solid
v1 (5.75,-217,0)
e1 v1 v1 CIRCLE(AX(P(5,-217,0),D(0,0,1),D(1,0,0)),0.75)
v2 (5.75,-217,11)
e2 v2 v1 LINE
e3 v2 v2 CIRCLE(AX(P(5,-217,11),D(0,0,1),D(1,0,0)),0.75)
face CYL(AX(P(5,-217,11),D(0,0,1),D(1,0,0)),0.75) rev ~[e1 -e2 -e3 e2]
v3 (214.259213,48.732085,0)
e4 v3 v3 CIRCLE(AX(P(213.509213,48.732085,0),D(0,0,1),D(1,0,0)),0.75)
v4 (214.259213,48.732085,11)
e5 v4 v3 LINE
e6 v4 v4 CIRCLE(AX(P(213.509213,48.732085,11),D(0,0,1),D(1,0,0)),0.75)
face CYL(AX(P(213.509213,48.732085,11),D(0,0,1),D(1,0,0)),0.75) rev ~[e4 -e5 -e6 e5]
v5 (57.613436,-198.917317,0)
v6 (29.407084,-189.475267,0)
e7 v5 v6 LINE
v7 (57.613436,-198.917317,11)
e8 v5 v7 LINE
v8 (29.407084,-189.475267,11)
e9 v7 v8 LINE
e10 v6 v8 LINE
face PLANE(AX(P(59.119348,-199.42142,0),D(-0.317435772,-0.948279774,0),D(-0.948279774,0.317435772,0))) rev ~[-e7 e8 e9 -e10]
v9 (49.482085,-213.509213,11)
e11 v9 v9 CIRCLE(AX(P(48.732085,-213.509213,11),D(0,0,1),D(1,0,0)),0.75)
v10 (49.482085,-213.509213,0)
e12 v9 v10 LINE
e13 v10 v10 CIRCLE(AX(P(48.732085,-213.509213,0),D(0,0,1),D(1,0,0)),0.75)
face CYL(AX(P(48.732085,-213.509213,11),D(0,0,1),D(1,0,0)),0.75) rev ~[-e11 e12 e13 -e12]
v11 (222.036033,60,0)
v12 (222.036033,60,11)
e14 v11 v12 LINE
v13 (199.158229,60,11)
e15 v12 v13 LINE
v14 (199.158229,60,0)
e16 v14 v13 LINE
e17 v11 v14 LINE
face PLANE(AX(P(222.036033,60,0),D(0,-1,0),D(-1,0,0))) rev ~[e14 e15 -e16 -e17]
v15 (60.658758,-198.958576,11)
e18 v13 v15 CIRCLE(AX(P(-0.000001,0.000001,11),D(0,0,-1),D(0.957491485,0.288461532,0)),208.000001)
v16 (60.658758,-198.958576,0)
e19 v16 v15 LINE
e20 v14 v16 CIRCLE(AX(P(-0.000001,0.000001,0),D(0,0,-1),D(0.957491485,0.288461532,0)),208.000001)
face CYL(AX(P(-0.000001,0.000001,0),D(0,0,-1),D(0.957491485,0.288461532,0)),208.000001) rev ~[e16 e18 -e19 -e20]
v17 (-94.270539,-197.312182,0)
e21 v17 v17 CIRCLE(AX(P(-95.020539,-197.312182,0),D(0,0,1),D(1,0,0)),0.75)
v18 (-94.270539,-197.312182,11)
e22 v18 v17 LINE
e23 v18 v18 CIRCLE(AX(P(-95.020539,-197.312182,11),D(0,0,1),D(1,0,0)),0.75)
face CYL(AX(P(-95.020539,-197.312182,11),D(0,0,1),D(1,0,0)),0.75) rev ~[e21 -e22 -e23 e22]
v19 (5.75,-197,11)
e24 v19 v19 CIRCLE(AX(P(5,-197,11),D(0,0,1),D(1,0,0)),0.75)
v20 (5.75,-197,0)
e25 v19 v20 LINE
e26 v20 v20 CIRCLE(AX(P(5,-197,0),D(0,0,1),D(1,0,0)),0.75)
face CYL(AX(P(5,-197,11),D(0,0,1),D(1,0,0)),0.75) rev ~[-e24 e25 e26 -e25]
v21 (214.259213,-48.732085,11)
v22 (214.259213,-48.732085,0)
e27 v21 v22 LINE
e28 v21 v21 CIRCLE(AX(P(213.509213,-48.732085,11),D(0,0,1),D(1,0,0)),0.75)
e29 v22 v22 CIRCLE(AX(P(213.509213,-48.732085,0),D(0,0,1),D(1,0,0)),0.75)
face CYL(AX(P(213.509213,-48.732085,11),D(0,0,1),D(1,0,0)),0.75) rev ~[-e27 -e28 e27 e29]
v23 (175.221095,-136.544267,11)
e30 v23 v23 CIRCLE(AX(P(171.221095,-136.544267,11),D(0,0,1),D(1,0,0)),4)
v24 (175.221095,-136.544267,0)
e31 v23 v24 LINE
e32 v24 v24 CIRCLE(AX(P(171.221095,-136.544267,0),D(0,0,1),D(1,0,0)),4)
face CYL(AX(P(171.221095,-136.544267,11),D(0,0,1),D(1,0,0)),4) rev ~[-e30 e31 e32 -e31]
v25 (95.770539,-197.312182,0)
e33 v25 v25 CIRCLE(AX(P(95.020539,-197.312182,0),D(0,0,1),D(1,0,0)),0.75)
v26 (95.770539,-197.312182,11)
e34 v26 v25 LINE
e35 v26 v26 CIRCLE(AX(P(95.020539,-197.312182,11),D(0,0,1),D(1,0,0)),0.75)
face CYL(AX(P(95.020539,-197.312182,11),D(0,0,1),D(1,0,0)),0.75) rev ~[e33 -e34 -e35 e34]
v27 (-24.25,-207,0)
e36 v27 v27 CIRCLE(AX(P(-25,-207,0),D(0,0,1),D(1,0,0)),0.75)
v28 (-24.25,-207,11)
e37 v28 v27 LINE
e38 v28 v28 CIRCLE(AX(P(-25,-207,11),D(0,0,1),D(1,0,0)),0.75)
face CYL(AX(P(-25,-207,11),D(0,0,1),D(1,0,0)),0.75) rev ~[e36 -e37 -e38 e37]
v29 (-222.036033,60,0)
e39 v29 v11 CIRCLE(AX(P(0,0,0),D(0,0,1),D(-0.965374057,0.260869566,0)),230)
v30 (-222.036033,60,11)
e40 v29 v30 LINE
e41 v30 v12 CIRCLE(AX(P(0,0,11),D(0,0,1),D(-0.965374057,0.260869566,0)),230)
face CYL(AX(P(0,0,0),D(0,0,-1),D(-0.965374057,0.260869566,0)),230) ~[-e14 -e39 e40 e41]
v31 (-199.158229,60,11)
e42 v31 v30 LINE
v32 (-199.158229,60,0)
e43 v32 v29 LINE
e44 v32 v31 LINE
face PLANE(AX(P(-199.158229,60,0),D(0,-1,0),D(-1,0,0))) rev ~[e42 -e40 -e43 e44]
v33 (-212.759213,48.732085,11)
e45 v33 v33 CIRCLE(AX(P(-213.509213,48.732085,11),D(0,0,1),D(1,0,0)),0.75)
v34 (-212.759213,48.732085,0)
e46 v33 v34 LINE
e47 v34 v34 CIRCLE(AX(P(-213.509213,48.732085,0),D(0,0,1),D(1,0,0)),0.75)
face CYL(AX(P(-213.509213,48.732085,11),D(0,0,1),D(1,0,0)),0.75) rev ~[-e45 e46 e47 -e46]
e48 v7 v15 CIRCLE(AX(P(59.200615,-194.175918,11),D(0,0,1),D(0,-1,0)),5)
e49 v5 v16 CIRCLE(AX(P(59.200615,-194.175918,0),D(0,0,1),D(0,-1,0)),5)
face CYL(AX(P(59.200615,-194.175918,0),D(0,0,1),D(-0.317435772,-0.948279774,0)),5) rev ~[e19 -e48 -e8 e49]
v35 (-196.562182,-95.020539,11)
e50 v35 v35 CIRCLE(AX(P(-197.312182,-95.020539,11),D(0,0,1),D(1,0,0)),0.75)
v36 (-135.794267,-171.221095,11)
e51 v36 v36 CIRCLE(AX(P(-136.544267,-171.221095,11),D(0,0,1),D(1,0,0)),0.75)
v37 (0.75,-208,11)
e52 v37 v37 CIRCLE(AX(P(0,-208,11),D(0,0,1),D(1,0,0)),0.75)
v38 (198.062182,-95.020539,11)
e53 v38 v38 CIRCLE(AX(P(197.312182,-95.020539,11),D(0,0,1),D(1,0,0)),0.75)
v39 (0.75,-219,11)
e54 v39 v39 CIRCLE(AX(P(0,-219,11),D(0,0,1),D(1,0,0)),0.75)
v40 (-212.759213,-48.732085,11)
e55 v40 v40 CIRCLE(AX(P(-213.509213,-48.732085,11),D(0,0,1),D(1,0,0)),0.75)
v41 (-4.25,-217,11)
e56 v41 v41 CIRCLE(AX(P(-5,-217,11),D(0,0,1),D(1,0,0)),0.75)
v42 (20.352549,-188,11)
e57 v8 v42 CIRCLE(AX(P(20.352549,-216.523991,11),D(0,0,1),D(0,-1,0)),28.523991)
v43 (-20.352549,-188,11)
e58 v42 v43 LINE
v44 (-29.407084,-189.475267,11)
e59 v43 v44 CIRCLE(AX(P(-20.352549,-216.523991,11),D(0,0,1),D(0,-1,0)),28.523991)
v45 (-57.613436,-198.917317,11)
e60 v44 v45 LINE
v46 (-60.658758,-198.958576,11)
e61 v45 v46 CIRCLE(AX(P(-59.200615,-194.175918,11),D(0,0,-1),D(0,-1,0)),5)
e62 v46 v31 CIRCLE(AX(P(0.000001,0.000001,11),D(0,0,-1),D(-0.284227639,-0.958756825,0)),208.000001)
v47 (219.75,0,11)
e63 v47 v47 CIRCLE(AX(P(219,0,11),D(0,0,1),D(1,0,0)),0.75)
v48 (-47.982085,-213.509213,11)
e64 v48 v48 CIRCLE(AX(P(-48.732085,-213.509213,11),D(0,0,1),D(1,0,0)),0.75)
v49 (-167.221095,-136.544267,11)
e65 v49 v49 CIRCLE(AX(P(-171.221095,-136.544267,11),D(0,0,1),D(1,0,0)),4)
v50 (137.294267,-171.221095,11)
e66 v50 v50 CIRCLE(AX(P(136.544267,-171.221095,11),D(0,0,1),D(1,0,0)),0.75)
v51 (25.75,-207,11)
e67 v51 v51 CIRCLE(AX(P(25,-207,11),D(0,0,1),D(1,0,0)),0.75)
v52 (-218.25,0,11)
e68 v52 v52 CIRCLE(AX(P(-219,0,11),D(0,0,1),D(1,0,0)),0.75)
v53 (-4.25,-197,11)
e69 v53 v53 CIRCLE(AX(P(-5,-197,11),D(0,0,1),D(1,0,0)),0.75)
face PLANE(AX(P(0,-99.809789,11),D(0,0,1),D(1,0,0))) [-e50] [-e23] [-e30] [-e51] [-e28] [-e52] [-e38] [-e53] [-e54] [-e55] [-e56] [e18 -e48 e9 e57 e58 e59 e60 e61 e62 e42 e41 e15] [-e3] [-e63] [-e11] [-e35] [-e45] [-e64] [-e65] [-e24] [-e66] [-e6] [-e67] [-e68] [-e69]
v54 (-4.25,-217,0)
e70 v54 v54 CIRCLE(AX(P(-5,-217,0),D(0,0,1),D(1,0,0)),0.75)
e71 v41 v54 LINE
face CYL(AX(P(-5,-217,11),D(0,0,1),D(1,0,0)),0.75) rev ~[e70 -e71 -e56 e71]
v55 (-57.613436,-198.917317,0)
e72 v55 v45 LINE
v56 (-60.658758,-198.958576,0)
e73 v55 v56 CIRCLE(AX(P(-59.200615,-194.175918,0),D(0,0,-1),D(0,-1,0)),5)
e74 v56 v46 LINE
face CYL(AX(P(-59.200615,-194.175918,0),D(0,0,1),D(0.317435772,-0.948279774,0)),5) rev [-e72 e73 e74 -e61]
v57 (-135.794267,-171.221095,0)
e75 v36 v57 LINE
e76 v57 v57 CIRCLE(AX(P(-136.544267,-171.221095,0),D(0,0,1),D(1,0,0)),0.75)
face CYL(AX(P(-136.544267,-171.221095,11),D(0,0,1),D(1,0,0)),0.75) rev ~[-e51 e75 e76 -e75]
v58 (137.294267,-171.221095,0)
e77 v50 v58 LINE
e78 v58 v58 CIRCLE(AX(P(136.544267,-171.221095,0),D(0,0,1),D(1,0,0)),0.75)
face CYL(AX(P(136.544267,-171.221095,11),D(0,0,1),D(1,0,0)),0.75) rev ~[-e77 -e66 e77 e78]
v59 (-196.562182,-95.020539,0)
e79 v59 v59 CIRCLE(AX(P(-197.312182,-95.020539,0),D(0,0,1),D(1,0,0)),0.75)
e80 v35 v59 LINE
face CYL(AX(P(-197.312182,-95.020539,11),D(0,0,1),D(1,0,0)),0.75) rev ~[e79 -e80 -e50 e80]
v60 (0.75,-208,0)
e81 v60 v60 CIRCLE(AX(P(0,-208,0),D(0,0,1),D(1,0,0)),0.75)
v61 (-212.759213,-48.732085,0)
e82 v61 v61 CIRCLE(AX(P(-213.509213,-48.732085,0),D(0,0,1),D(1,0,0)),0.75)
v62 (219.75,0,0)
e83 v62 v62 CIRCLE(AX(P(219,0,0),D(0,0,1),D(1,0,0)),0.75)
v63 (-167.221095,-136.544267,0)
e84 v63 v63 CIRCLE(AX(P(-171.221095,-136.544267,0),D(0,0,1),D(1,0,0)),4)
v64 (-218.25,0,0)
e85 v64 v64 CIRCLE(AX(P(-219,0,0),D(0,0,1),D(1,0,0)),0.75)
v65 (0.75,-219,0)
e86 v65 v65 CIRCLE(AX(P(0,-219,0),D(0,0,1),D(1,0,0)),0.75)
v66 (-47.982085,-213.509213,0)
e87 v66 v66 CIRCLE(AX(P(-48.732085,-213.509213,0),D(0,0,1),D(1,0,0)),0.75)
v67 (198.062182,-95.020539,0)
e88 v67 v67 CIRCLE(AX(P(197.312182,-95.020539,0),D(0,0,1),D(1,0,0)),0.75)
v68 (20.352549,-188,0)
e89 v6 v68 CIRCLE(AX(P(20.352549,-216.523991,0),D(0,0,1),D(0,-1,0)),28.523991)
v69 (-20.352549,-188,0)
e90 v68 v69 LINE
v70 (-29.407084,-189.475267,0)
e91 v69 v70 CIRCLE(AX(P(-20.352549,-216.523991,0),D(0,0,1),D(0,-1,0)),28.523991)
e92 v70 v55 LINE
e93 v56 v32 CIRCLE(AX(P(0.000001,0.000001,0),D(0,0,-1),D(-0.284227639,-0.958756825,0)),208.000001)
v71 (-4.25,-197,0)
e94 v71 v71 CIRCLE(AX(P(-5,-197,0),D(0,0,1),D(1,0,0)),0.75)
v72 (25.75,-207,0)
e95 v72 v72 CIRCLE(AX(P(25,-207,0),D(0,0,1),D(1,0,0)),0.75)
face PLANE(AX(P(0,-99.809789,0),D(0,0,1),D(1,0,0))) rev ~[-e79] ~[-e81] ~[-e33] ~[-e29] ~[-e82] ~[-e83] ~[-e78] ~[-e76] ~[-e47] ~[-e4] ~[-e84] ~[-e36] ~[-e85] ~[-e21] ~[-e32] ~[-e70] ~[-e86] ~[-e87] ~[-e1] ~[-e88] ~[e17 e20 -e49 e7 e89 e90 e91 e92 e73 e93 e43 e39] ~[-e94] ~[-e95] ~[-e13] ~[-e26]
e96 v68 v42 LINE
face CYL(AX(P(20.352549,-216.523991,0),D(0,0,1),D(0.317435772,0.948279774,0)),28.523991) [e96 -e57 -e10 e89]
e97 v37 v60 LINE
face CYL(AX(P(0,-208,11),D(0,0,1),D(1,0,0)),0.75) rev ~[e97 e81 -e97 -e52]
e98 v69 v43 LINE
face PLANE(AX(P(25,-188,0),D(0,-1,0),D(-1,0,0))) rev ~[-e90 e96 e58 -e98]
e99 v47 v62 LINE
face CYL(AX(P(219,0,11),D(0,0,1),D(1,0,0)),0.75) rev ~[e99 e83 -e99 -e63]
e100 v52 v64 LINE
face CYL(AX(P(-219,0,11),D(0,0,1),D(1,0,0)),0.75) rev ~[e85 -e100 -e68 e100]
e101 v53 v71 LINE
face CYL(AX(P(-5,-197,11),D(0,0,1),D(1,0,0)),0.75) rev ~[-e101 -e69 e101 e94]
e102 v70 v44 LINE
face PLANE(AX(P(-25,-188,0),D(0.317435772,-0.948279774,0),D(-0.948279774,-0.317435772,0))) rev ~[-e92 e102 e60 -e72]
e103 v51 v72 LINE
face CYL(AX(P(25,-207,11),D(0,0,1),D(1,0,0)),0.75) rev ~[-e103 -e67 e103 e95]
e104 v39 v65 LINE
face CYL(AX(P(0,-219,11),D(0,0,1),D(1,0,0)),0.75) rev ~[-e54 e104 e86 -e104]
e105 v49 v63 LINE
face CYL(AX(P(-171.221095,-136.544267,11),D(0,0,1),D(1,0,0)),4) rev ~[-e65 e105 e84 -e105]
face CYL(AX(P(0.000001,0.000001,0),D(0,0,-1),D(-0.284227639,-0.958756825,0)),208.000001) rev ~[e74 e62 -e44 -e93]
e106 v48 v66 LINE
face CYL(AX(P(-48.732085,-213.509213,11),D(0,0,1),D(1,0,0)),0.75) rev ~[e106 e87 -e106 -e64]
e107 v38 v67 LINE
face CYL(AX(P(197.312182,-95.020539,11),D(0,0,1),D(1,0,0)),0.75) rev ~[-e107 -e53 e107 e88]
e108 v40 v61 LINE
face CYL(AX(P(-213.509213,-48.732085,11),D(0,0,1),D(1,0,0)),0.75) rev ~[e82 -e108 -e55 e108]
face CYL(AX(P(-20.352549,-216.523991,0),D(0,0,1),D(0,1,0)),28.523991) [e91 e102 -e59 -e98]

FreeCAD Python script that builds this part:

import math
import FreeCAD as App
import Part
import Sketcher

V = App.Vector


def edges_at(feature, points):
    """Names of the edges that pass closest to the given points."""
    edges = feature.Shape.Edges
    near = lambda p: min(range(len(edges)), key=lambda i: edges[i].distToShape(Part.Vertex(*p))[0])
    return sorted({f"Edge{near(p) + 1}" for p in points})

doc = App.newDocument("Part")
params = doc.addObject("Spreadsheet::Sheet", "Params")
for row, (alias, value) in enumerate([
    ("sketch1_radius", "208.000001 mm"),
    ("sketch1_radius2", "230 mm"),
    ("sketch1_width", "50 mm"),
    ("pad1_length", "11 mm"),
    ("fillet_radius", "28.523991 mm"),
    ("fillet2_radius", "5 mm"),
    ("sketch2_diameter", "1.5 mm"),
    ("sketch3_diameter", "8 mm"),
], start=1):
    params.set(f"A{row}", alias)
    params.set(f"B{row}", "=" + value)
    params.setAlias(f"B{row}", alias)

body = doc.addObject("PartDesign::Body", "Body")

sketch1 = doc.addObject("Sketcher::SketchObject", "Sketch")
body.addObject(sketch1)
sketch1.AttachmentSupport = (doc.XY_Plane, [""])
sketch1.MapMode = "FlatFace"
sketch1.addGeometry([
    Part.ArcOfCircle(Part.Circle(V(0.000001, 0.000001, 0), V(0, 0, 1), 208.000001), math.radians(163.234127), math.radians(253.487314)),
    Part.LineSegment(V(-199.158229, 60, 0), V(-222.036033, 60, 0)),
    Part.ArcOfCircle(Part.Circle(V(0, 0, 0), V(0, 0, 1), 230), math.radians(164.878335), math.radians(375.121665)),
    Part.LineSegment(V(222.036033, 60, 0), V(199.158229, 60, 0)),
    Part.ArcOfCircle(Part.Circle(V(-0.000001, 0.000001, 0), V(0, 0, 1), 208.000001), math.radians(-73.487314), math.radians(16.765873)),
    Part.LineSegment(V(59.119348, -199.42142, 0), V(25, -188, 0)),
    Part.LineSegment(V(25, -188, 0), V(-25, -188, 0)),
    Part.LineSegment(V(-25, -188, 0), V(-59.119348, -199.42142, 0)),
], False)
sketch1.addConstraint([
    Sketcher.Constraint("Coincident", 0, 1, 1, 1),
    Sketcher.Constraint("Coincident", 1, 2, 2, 1),
    Sketcher.Constraint("Coincident", 2, 2, 3, 1),
    Sketcher.Constraint("Coincident", 3, 2, 4, 2),
    Sketcher.Constraint("Coincident", 4, 1, 5, 1),
    Sketcher.Constraint("Coincident", 5, 2, 6, 1),
    Sketcher.Constraint("Coincident", 6, 2, 7, 1),
    Sketcher.Constraint("Coincident", 7, 2, 0, 2),
    Sketcher.Constraint("Horizontal", 1),
    Sketcher.Constraint("Horizontal", 3),
    Sketcher.Constraint("Horizontal", 6),
    Sketcher.Constraint("Coincident", 0, 3, -1, 1),
    Sketcher.Constraint("Coincident", 2, 3, -1, 1),
    Sketcher.Constraint("Coincident", 4, 3, -1, 1),
    Sketcher.Constraint("Equal", 0, 4),
    Sketcher.Constraint("Horizontal", 1, 2, 2, 2),
    Sketcher.Constraint("Horizontal", 4, 1, 7, 2),
    Sketcher.Constraint("Equal", 5, 7),
    Sketcher.Constraint("Radius", 0, 208.000001),
    Sketcher.Constraint("Radius", 2, 230.0),
    Sketcher.Constraint("DistanceX", 6, 2, 6, 1, 50.0),
    Sketcher.Constraint("DistanceY", -1, 1, 0, 1, 60.0),
    Sketcher.Constraint("DistanceY", 5, 2, -1, 1, 188.0),
    Sketcher.Constraint("DistanceX", -1, 1, 4, 1, 59.119348),
])
sketch1.setExpression("Constraints[18]", "Params.sketch1_radius")
sketch1.setExpression("Constraints[19]", "Params.sketch1_radius2")
sketch1.setExpression("Constraints[20]", "Params.sketch1_width")
pad1 = doc.addObject("PartDesign::Pad", "Pad")
body.addObject(pad1)
pad1.Profile = sketch1
pad1.setExpression("Length", "Params.pad1_length")
doc.recompute()

fillet = doc.addObject("PartDesign::Fillet", "Fillet")
body.addObject(fillet)
fillet.Base = (pad1, edges_at(pad1, [(25, -188, 5.5), (-25, -188, 5.5)]))
fillet.setExpression("Radius", "Params.fillet_radius")
doc.recompute()

fillet2 = doc.addObject("PartDesign::Fillet", "Fillet001")
body.addObject(fillet2)
fillet2.Base = (fillet, edges_at(fillet, [(59.119, -199.421, 5.5), (-59.119, -199.421, 5.5)]))
fillet2.setExpression("Radius", "Params.fillet2_radius")

sketch2 = doc.addObject("Sketcher::SketchObject", "Sketch001")
body.addObject(sketch2)
sketch2.AttachmentSupport = (doc.XY_Plane, [""])
sketch2.MapMode = "FlatFace"
sketch2.AttachmentOffset = App.Placement(V(0, 0, 11), App.Rotation())
sketch2.addGeometry([
    Part.Circle(V(0, -219, 0), V(0, 0, 1), 0.75),
    Part.Circle(V(48.732085, -213.509213, 0), V(0, 0, 1), 0.75),
    Part.Circle(V(95.020539, -197.312182, 0), V(0, 0, 1), 0.75),
    Part.Circle(V(136.544267, -171.221095, 0), V(0, 0, 1), 0.75),
    Part.Circle(V(171.221095, -136.544267, 0), V(0, 0, 1), 0.75),
    Part.Circle(V(197.312182, -95.020539, 0), V(0, 0, 1), 0.75),
    Part.Circle(V(213.509213, -48.732085, 0), V(0, 0, 1), 0.75),
    Part.Circle(V(219, 0, 0), V(0, 0, 1), 0.75),
    Part.Circle(V(213.509213, 48.732085, 0), V(0, 0, 1), 0.75),
    Part.Circle(V(197.312182, 95.020539, 0), V(0, 0, 1), 0.75),
    Part.Circle(V(171.221095, 136.544267, 0), V(0, 0, 1), 0.75),
    Part.Circle(V(136.544267, 171.221095, 0), V(0, 0, 1), 0.75),
    Part.Circle(V(95.020539, 197.312182, 0), V(0, 0, 1), 0.75),
    Part.Circle(V(48.732085, 213.509213, 0), V(0, 0, 1), 0.75),
    Part.Circle(V(0, 219, 0), V(0, 0, 1), 0.75),
    Part.Circle(V(-48.732085, 213.509213, 0), V(0, 0, 1), 0.75),
    Part.Circle(V(-95.020539, 197.312182, 0), V(0, 0, 1), 0.75),
    Part.Circle(V(-136.544267, 171.221095, 0), V(0, 0, 1), 0.75),
    Part.Circle(V(-171.221095, 136.544267, 0), V(0, 0, 1), 0.75),
    Part.Circle(V(-197.312182, 95.020539, 0), V(0, 0, 1), 0.75),
    Part.Circle(V(-213.509213, 48.732085, 0), V(0, 0, 1), 0.75),
    Part.Circle(V(-219, 0, 0), V(0, 0, 1), 0.75),
    Part.Circle(V(-213.509213, -48.732085, 0), V(0, 0, 1), 0.75),
    Part.Circle(V(-197.312182, -95.020539, 0), V(0, 0, 1), 0.75),
    Part.Circle(V(-171.221095, -136.544267, 0), V(0, 0, 1), 0.75),
    Part.Circle(V(-136.544267, -171.221095, 0), V(0, 0, 1), 0.75),
    Part.Circle(V(-95.020539, -197.312182, 0), V(0, 0, 1), 0.75),
    Part.Circle(V(-48.732085, -213.509213, 0), V(0, 0, 1), 0.75),
    Part.Circle(V(-5, -197, 0), V(0, 0, 1), 0.75),
    Part.Circle(V(5, -197, 0), V(0, 0, 1), 0.75),
    Part.Circle(V(0, -208, 0), V(0, 0, 1), 0.75),
    Part.Circle(V(-5, -217, 0), V(0, 0, 1), 0.75),
    Part.Circle(V(-25, -207, 0), V(0, 0, 1), 0.75),
    Part.Circle(V(5, -217, 0), V(0, 0, 1), 0.75),
    Part.Circle(V(25, -207, 0), V(0, 0, 1), 0.75),
], False)
sketch2.addConstraint([
    Sketcher.Constraint("Equal", 0, 1),
    Sketcher.Constraint("Equal", 1, 2),
    Sketcher.Constraint("Equal", 2, 3),
    Sketcher.Constraint("Equal", 3, 4),
    Sketcher.Constraint("Equal", 4, 5),
    Sketcher.Constraint("Equal", 5, 6),
    Sketcher.Constraint("Equal", 6, 7),
    Sketcher.Constraint("Equal", 7, 8),
    Sketcher.Constraint("Equal", 8, 9),
    Sketcher.Constraint("Equal", 9, 10),
    Sketcher.Constraint("Equal", 10, 11),
    Sketcher.Constraint("Equal", 11, 12),
    Sketcher.Constraint("Equal", 12, 13),
    Sketcher.Constraint("Equal", 13, 14),
    Sketcher.Constraint("Equal", 14, 15),
    Sketcher.Constraint("Equal", 15, 16),
    Sketcher.Constraint("Equal", 16, 17),
    Sketcher.Constraint("Equal", 17, 18),
    Sketcher.Constraint("Equal", 18, 19),
    Sketcher.Constraint("Equal", 19, 20),
    Sketcher.Constraint("Equal", 20, 21),
    Sketcher.Constraint("Equal", 21, 22),
    Sketcher.Constraint("Equal", 22, 23),
    Sketcher.Constraint("Equal", 23, 24),
    Sketcher.Constraint("Equal", 24, 25),
    Sketcher.Constraint("Equal", 25, 26),
    Sketcher.Constraint("Equal", 26, 27),
    Sketcher.Constraint("Equal", 27, 28),
    Sketcher.Constraint("Equal", 28, 29),
    Sketcher.Constraint("Equal", 29, 30),
    Sketcher.Constraint("Equal", 30, 31),
    Sketcher.Constraint("Equal", 31, 32),
    Sketcher.Constraint("Equal", 32, 33),
    Sketcher.Constraint("Equal", 33, 34),
    Sketcher.Constraint("Symmetric", 0, 3, 14, 3, -1, 1),
    Sketcher.Constraint("Symmetric", 1, 3, 15, 3, -1, 1),
    Sketcher.Constraint("Symmetric", 2, 3, 16, 3, -1, 1),
    Sketcher.Constraint("Symmetric", 3, 3, 17, 3, -1, 1),
    Sketcher.Constraint("Symmetric", 4, 3, 18, 3, -1, 1),
    Sketcher.Constraint("Symmetric", 5, 3, 19, 3, -1, 1),
    Sketcher.Constraint("Symmetric", 6, 3, 20, 3, -1, 1),
    Sketcher.Constraint("Symmetric", 7, 3, 21, 3, -1, 1),
    Sketcher.Constraint("Symmetric", 8, 3, 22, 3, -1, 1),
    Sketcher.Constraint("Symmetric", 9, 3, 23, 3, -1, 1),
    Sketcher.Constraint("Symmetric", 10, 3, 24, 3, -1, 1),
    Sketcher.Constraint("Symmetric", 11, 3, 25, 3, -1, 1),
    Sketcher.Constraint("Symmetric", 12, 3, 26, 3, -1, 1),
    Sketcher.Constraint("Symmetric", 13, 3, 27, 3, -1, 1),
    Sketcher.Constraint("Symmetric", 13, 3, 15, 3, -2),
    Sketcher.Constraint("Symmetric", 12, 3, 16, 3, -2),
    Sketcher.Constraint("Symmetric", 11, 3, 17, 3, -2),
    Sketcher.Constraint("Symmetric", 10, 3, 18, 3, -2),
    Sketcher.Constraint("Symmetric", 9, 3, 19, 3, -2),
    Sketcher.Constraint("Symmetric", 8, 3, 20, 3, -2),
    Sketcher.Constraint("Symmetric", 28, 3, 29, 3, -2),
    Sketcher.Constraint("Symmetric", 31, 3, 33, 3, -2),
    Sketcher.Constraint("Symmetric", 32, 3, 34, 3, -2),
    Sketcher.Constraint("PointOnObject", 0, 3, -2),
    Sketcher.Constraint("PointOnObject", 7, 3, -1),
    Sketcher.Constraint("PointOnObject", 30, 3, -2),
    Sketcher.Constraint("Vertical", 28, 3, 31, 3),
    Sketcher.Constraint("Diameter", 0, 1.5),
    Sketcher.Constraint("DistanceY", 0, 3, -1, 1, 219.0),
    Sketcher.Constraint("DistanceX", -1, 1, 7, 3, 219.0),
    Sketcher.Constraint("DistanceX", 28, 3, -1, 1, 5.0),
    Sketcher.Constraint("DistanceY", 28, 3, -1, 1, 197.0),
    Sketcher.Constraint("DistanceY", 30, 3, -1, 1, 208.0),
    Sketcher.Constraint("DistanceY", 31, 3, -1, 1, 217.0),
    Sketcher.Constraint("DistanceX", 32, 3, -1, 1, 25.0),
    Sketcher.Constraint("DistanceY", 32, 3, -1, 1, 207.0),
    Sketcher.Constraint("DistanceX", -1, 1, 2, 3, 95.020539),
    Sketcher.Constraint("DistanceY", 2, 3, -1, 1, 197.312182),
    Sketcher.Constraint("DistanceX", -1, 1, 5, 3, 197.312182),
    Sketcher.Constraint("DistanceY", 5, 3, -1, 1, 95.020539),
    Sketcher.Constraint("DistanceY", 1, 3, 2, 3, 16.197031),
    Sketcher.Constraint("DistanceX", 1, 3, 3, 3, 87.812182),
    Sketcher.Constraint("DistanceX", 1, 3, 4, 3, 122.48901),
    Sketcher.Constraint("DistanceX", 5, 3, 6, 3, 16.197031),
    Sketcher.Constraint("DistanceY", 4, 3, 6, 3, 87.812182),
    Sketcher.Constraint("DistanceY", 3, 3, 6, 3, 122.48901),
    Sketcher.Constraint("DistanceX", 1, 3, 6, 3, 164.777128),
    Sketcher.Constraint("DistanceY", 1, 3, 6, 3, 164.777128),
])
sketch2.setExpression("Constraints[61]", "Params.sketch2_diameter")
pocket1 = doc.addObject("PartDesign::Pocket", "Pocket")
body.addObject(pocket1)
pocket1.Profile = sketch2
pocket1.Type = "ThroughAll"

sketch3 = doc.addObject("Sketcher::SketchObject", "Sketch002")
body.addObject(sketch3)
sketch3.AttachmentSupport = (doc.XY_Plane, [""])
sketch3.MapMode = "FlatFace"
sketch3.AttachmentOffset = App.Placement(V(0, 0, 11), App.Rotation())
sketch3.addGeometry([
    Part.Circle(V(-171.221095, -136.544267, 0), V(0, 0, 1), 4),
    Part.Circle(V(171.221095, -136.544267, 0), V(0, 0, 1), 4),
], False)
sketch3.addConstraint([
    Sketcher.Constraint("Equal", 0, 1),
    Sketcher.Constraint("Symmetric", 0, 3, 1, 3, -2),
    Sketcher.Constraint("Diameter", 0, 8.0),
    Sketcher.Constraint("DistanceX", 0, 3, 1, 3, 342.44219),
    Sketcher.Constraint("DistanceY", 0, 3, -1, 1, 136.544267),
])
sketch3.setExpression("Constraints[2]", "Params.sketch3_diameter")
pocket2 = doc.addObject("PartDesign::Pocket", "Pocket001")
body.addObject(pocket2)
pocket2.Profile = sketch3
pocket2.Type = "ThroughAll"

doc.recompute()
